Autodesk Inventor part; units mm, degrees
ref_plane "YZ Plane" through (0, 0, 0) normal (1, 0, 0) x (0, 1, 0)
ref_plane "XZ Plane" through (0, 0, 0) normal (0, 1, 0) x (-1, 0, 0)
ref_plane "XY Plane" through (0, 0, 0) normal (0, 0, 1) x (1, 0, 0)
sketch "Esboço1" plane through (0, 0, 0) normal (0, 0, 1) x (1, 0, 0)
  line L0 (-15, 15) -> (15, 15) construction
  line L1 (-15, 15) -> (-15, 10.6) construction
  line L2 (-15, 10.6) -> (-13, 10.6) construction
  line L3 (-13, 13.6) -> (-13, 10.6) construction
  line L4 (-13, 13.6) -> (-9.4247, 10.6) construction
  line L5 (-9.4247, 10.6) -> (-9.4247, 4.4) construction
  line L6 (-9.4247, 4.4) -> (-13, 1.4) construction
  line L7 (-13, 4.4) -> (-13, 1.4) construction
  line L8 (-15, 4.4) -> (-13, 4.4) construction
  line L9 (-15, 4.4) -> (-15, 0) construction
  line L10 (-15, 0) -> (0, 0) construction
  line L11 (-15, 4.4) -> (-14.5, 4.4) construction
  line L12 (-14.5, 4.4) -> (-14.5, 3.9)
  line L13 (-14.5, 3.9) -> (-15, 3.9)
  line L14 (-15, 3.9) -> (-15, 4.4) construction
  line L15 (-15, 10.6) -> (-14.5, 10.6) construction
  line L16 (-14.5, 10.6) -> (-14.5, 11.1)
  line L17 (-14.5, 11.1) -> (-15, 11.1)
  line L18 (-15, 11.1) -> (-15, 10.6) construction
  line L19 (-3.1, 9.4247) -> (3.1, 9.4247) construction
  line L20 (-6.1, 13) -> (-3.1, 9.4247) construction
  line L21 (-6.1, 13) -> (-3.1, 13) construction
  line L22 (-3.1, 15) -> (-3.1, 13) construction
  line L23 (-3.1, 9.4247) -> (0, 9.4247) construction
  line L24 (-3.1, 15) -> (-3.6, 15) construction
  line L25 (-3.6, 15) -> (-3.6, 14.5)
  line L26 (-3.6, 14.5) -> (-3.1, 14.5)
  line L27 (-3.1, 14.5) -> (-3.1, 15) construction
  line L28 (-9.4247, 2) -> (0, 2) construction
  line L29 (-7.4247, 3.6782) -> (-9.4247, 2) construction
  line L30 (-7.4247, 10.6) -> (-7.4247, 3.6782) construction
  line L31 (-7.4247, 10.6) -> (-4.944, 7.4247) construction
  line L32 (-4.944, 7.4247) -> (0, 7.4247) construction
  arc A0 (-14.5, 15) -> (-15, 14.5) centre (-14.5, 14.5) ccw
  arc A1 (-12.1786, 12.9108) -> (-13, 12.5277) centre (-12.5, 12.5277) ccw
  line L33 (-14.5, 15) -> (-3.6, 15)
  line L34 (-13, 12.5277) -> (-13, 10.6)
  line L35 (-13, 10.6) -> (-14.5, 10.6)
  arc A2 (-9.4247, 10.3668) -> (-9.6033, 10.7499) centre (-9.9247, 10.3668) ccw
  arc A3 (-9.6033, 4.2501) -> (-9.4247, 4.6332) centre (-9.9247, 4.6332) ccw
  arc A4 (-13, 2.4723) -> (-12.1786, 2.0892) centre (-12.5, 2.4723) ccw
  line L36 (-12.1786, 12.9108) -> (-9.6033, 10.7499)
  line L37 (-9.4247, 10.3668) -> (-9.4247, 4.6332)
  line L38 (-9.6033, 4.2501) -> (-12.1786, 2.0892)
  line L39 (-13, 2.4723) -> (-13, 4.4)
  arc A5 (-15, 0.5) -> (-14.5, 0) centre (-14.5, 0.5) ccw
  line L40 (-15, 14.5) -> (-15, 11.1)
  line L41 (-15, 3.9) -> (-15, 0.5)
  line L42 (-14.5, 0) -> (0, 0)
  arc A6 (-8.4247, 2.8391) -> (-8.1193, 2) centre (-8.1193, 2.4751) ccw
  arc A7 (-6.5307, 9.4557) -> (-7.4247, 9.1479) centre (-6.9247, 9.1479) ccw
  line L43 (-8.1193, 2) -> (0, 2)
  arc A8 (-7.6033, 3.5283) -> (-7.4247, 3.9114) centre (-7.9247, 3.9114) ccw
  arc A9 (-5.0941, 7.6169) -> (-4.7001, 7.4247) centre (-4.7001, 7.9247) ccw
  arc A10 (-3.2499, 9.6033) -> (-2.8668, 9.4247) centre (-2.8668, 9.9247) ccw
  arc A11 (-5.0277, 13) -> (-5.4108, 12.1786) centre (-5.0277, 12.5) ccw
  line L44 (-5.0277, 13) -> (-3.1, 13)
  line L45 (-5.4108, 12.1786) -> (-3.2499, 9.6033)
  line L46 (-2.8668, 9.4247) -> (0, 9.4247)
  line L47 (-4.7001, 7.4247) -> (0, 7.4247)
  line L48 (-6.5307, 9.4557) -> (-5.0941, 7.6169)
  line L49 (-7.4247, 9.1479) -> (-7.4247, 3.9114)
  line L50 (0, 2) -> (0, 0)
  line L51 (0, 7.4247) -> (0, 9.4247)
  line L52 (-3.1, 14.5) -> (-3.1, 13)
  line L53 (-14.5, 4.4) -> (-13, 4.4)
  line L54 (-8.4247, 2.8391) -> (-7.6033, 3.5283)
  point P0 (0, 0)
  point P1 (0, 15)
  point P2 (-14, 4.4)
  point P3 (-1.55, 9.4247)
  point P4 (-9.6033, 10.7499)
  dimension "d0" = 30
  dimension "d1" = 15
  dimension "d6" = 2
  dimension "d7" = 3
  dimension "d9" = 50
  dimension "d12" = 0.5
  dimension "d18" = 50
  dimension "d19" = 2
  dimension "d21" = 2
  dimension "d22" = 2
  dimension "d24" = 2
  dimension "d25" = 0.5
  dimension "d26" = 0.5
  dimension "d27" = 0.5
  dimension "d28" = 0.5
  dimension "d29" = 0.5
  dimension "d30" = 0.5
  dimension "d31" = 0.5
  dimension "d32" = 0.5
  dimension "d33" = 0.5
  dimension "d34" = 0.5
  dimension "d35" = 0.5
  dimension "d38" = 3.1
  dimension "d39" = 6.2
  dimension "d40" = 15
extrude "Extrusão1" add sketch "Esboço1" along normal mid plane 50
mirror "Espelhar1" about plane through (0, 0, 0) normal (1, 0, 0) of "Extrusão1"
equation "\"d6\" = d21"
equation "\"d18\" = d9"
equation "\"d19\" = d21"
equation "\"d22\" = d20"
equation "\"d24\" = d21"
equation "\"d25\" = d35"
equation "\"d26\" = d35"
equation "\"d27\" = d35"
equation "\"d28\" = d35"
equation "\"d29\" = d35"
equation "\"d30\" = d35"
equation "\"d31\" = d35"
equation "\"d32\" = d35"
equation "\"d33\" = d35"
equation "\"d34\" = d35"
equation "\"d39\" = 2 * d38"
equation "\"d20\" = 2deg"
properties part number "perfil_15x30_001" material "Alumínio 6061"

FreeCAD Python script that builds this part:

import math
import FreeCAD as App
import Part
import Sketcher
Q = App.Units.Quantity

doc = App.newDocument("Part")
body = doc.addObject("PartDesign::Body", "Body")

# Sketch on XY plane
sketch1 = body.newObject("Sketcher::SketchObject", "Sketch")
sketch1.AttachmentSupport = (doc.getObject("XY_Plane"), [""])
sketch1.MapMode = "FlatFace"
sketch1.addGeometry(Part.LineSegment(App.Vector(-13, 4.4, 0), App.Vector(-14.5, 4.4, 0)), False)
sketch1.addGeometry(Part.LineSegment(App.Vector(-14.5, 4.4, 0), App.Vector(-14.5, 3.9, 0)), False)
sketch1.addGeometry(Part.LineSegment(App.Vector(-14.5, 3.9, 0), App.Vector(-15, 3.9, 0)), False)
sketch1.addGeometry(Part.LineSegment(App.Vector(-15, 3.9, 0), App.Vector(-15, 0.5, 0)), False)
sketch1.addGeometry(Part.ArcOfCircle(Part.Circle(App.Vector(-14.5, 0.5, 0), App.Vector(0, 0, 1), 0.5), math.radians(180), math.radians(270)), False)
sketch1.addGeometry(Part.LineSegment(App.Vector(-14.5, 0, 0), App.Vector(0, 0, 0)), False)
sketch1.addGeometry(Part.LineSegment(App.Vector(0, 0, 0), App.Vector(0, 2, 0)), False)
sketch1.addGeometry(Part.LineSegment(App.Vector(0, 2, 0), App.Vector(-8.12, 2, 0)), False)
sketch1.addGeometry(Part.ArcOfCircle(Part.Circle(App.Vector(-8.12, 2.48, 0), App.Vector(0, 0, 1), 0.48), math.radians(130), math.radians(270)), False)
sketch1.addGeometry(Part.LineSegment(App.Vector(-8.42, 2.84, 0), App.Vector(-7.6, 3.53, 0)), False)
sketch1.addGeometry(Part.ArcOfCircle(Part.Circle(App.Vector(-7.92, 3.91, 0), App.Vector(0, 0, 1), 0.5), math.radians(-50), math.radians(0)), False)
sketch1.addGeometry(Part.LineSegment(App.Vector(-7.42, 3.91, 0), App.Vector(-7.42, 9.15, 0)), False)
sketch1.addGeometry(Part.ArcOfCircle(Part.Circle(App.Vector(-6.92, 9.15, 0), App.Vector(0, 0, 1), 0.5), math.radians(38), math.radians(180)), False)
sketch1.addGeometry(Part.LineSegment(App.Vector(-6.53, 9.46, 0), App.Vector(-5.09, 7.62, 0)), False)
sketch1.addGeometry(Part.ArcOfCircle(Part.Circle(App.Vector(-4.7, 7.92, 0), App.Vector(0, 0, 1), 0.5), math.radians(-142), math.radians(-90)), False)
sketch1.addGeometry(Part.LineSegment(App.Vector(-4.7, 7.42, 0), App.Vector(0, 7.42, 0)), False)
sketch1.addGeometry(Part.LineSegment(App.Vector(0, 7.42, 0), App.Vector(0, 9.42, 0)), False)
sketch1.addGeometry(Part.LineSegment(App.Vector(0, 9.42, 0), App.Vector(-2.87, 9.42, 0)), False)
sketch1.addGeometry(Part.ArcOfCircle(Part.Circle(App.Vector(-2.87, 9.92, 0), App.Vector(0, 0, 1), 0.5), math.radians(-140), math.radians(-90)), False)
sketch1.addGeometry(Part.LineSegment(App.Vector(-3.25, 9.6, 0), App.Vector(-5.41, 12.18, 0)), False)
sketch1.addGeometry(Part.ArcOfCircle(Part.Circle(App.Vector(-5.03, 12.5, 0), App.Vector(0, 0, 1), 0.5), math.radians(90), math.radians(220)), False)
sketch1.addGeometry(Part.LineSegment(App.Vector(-5.03, 13, 0), App.Vector(-3.1, 13, 0)), False)
sketch1.addGeometry(Part.LineSegment(App.Vector(-3.1, 13, 0), App.Vector(-3.1, 14.5, 0)), False)
sketch1.addGeometry(Part.LineSegment(App.Vector(-3.1, 14.5, 0), App.Vector(-3.6, 14.5, 0)), False)
sketch1.addGeometry(Part.LineSegment(App.Vector(-3.6, 14.5, 0), App.Vector(-3.6, 15, 0)), False)
sketch1.addGeometry(Part.LineSegment(App.Vector(-3.6, 15, 0), App.Vector(-14.5, 15, 0)), False)
sketch1.addGeometry(Part.ArcOfCircle(Part.Circle(App.Vector(-14.5, 14.5, 0), App.Vector(0, 0, 1), 0.5), math.radians(90), math.radians(180)), False)
sketch1.addGeometry(Part.LineSegment(App.Vector(-15, 14.5, 0), App.Vector(-15, 11.1, 0)), False)
sketch1.addGeometry(Part.LineSegment(App.Vector(-15, 11.1, 0), App.Vector(-14.5, 11.1, 0)), False)
sketch1.addGeometry(Part.LineSegment(App.Vector(-14.5, 11.1, 0), App.Vector(-14.5, 10.6, 0)), False)
sketch1.addGeometry(Part.LineSegment(App.Vector(-14.5, 10.6, 0), App.Vector(-13, 10.6, 0)), False)
sketch1.addGeometry(Part.LineSegment(App.Vector(-13, 10.6, 0), App.Vector(-13, 12.53, 0)), False)
sketch1.addGeometry(Part.ArcOfCircle(Part.Circle(App.Vector(-12.5, 12.53, 0), App.Vector(0, 0, 1), 0.5), math.radians(50), math.radians(180)), False)
sketch1.addGeometry(Part.LineSegment(App.Vector(-12.18, 12.91, 0), App.Vector(-9.6, 10.75, 0)), False)
sketch1.addGeometry(Part.ArcOfCircle(Part.Circle(App.Vector(-9.92, 10.37, 0), App.Vector(0, 0, 1), 0.5), math.radians(0), math.radians(50)), False)
sketch1.addGeometry(Part.LineSegment(App.Vector(-9.42, 10.37, 0), App.Vector(-9.42, 4.63, 0)), False)
sketch1.addGeometry(Part.ArcOfCircle(Part.Circle(App.Vector(-9.92, 4.63, 0), App.Vector(0, 0, 1), 0.5), math.radians(-50), math.radians(0)), False)
sketch1.addGeometry(Part.LineSegment(App.Vector(-9.6, 4.25, 0), App.Vector(-12.18, 2.09, 0)), False)
sketch1.addGeometry(Part.ArcOfCircle(Part.Circle(App.Vector(-12.5, 2.47, 0), App.Vector(0, 0, 1), 0.5), math.radians(180), math.radians(310)), False)
sketch1.addGeometry(Part.LineSegment(App.Vector(-13, 2.47, 0), App.Vector(-13, 4.4, 0)), False)
sketch1.addConstraint(Sketcher.Constraint("Coincident", 0, 2, 1, 1))
sketch1.addConstraint(Sketcher.Constraint("Coincident", 1, 2, 2, 1))
sketch1.addConstraint(Sketcher.Constraint("Coincident", 2, 2, 3, 1))
sketch1.addConstraint(Sketcher.Constraint("Tangent", 3, 2, 4, 1))
sketch1.addConstraint(Sketcher.Constraint("Tangent", 4, 2, 5, 1))
sketch1.addConstraint(Sketcher.Constraint("Coincident", 5, 2, 6, 1))
sketch1.addConstraint(Sketcher.Constraint("Coincident", 6, 2, 7, 1))
sketch1.addConstraint(Sketcher.Constraint("Tangent", 7, 2, 8, 2))
sketch1.addConstraint(Sketcher.Constraint("Tangent", 8, 1, 9, 1))
sketch1.addConstraint(Sketcher.Constraint("Tangent", 9, 2, 10, 1))
sketch1.addConstraint(Sketcher.Constraint("Tangent", 10, 2, 11, 1))
sketch1.addConstraint(Sketcher.Constraint("Tangent", 11, 2, 12, 2))
sketch1.addConstraint(Sketcher.Constraint("Tangent", 12, 1, 13, 1))
sketch1.addConstraint(Sketcher.Constraint("Tangent", 13, 2, 14, 1))
sketch1.addConstraint(Sketcher.Constraint("Tangent", 14, 2, 15, 1))
sketch1.addConstraint(Sketcher.Constraint("Coincident", 15, 2, 16, 1))
sketch1.addConstraint(Sketcher.Constraint("Coincident", 16, 2, 17, 1))
sketch1.addConstraint(Sketcher.Constraint("Tangent", 17, 2, 18, 2))
sketch1.addConstraint(Sketcher.Constraint("Tangent", 18, 1, 19, 1))
sketch1.addConstraint(Sketcher.Constraint("Tangent", 19, 2, 20, 2))
sketch1.addConstraint(Sketcher.Constraint("Tangent", 20, 1, 21, 1))
sketch1.addConstraint(Sketcher.Constraint("Coincident", 21, 2, 22, 1))
sketch1.addConstraint(Sketcher.Constraint("Coincident", 22, 2, 23, 1))
sketch1.addConstraint(Sketcher.Constraint("Coincident", 23, 2, 24, 1))
sketch1.addConstraint(Sketcher.Constraint("Coincident", 24, 2, 25, 1))
sketch1.addConstraint(Sketcher.Constraint("Tangent", 25, 2, 26, 1))
sketch1.addConstraint(Sketcher.Constraint("Tangent", 26, 2, 27, 1))
sketch1.addConstraint(Sketcher.Constraint("Coincident", 27, 2, 28, 1))
sketch1.addConstraint(Sketcher.Constraint("Coincident", 28, 2, 29, 1))
sketch1.addConstraint(Sketcher.Constraint("Coincident", 29, 2, 30, 1))
sketch1.addConstraint(Sketcher.Constraint("Coincident", 30, 2, 31, 1))
sketch1.addConstraint(Sketcher.Constraint("Tangent", 31, 2, 32, 2))
sketch1.addConstraint(Sketcher.Constraint("Tangent", 32, 1, 33, 1))
sketch1.addConstraint(Sketcher.Constraint("Tangent", 33, 2, 34, 2))
sketch1.addConstraint(Sketcher.Constraint("Tangent", 34, 1, 35, 1))
sketch1.addConstraint(Sketcher.Constraint("Tangent", 35, 2, 36, 2))
sketch1.addConstraint(Sketcher.Constraint("Tangent", 36, 1, 37, 1))
sketch1.addConstraint(Sketcher.Constraint("Tangent", 37, 2, 38, 2))
sketch1.addConstraint(Sketcher.Constraint("Tangent", 38, 1, 39, 1))
sketch1.addConstraint(Sketcher.Constraint("Coincident", 39, 2, 0, 1))
sketch1.addConstraint(Sketcher.Constraint("Horizontal", 0))
sketch1.addConstraint(Sketcher.Constraint("Vertical", 1))
sketch1.addConstraint(Sketcher.Constraint("Horizontal", 2))
sketch1.addConstraint(Sketcher.Constraint("Vertical", 3))
sketch1.addConstraint(Sketcher.Constraint("Horizontal", 5))
sketch1.addConstraint(Sketcher.Constraint("Vertical", 6))
sketch1.addConstraint(Sketcher.Constraint("Horizontal", 7))
sketch1.addConstraint(Sketcher.Constraint("Vertical", 11))
sketch1.addConstraint(Sketcher.Constraint("Horizontal", 15))
sketch1.addConstraint(Sketcher.Constraint("Vertical", 16))
sketch1.addConstraint(Sketcher.Constraint("Horizontal", 17))
sketch1.addConstraint(Sketcher.Constraint("Horizontal", 21))
sketch1.addConstraint(Sketcher.Constraint("Vertical", 22))
sketch1.addConstraint(Sketcher.Constraint("Horizontal", 23))
sketch1.addConstraint(Sketcher.Constraint("Vertical", 24))
sketch1.addConstraint(Sketcher.Constraint("Horizontal", 25))
sketch1.addConstraint(Sketcher.Constraint("Vertical", 27))
sketch1.addConstraint(Sketcher.Constraint("Horizontal", 28))
sketch1.addConstraint(Sketcher.Constraint("Vertical", 29))
sketch1.addConstraint(Sketcher.Constraint("Horizontal", 30))
sketch1.addConstraint(Sketcher.Constraint("Vertical", 31))
sketch1.addConstraint(Sketcher.Constraint("Vertical", 35))
sketch1.addConstraint(Sketcher.Constraint("Vertical", 39))
sketch1.addConstraint(Sketcher.Constraint("Coincident", 5, 2, -1, 1))
sketch1.addConstraint(Sketcher.Constraint("Equal", 4, 10))
sketch1.addConstraint(Sketcher.Constraint("Equal", 10, 12))
sketch1.addConstraint(Sketcher.Constraint("Equal", 12, 14))
sketch1.addConstraint(Sketcher.Constraint("Equal", 14, 18))
sketch1.addConstraint(Sketcher.Constraint("Equal", 18, 20))
sketch1.addConstraint(Sketcher.Constraint("Equal", 20, 26))
sketch1.addConstraint(Sketcher.Constraint("Equal", 26, 32))
sketch1.addConstraint(Sketcher.Constraint("Equal", 32, 34))
sketch1.addConstraint(Sketcher.Constraint("Equal", 34, 36))
sketch1.addConstraint(Sketcher.Constraint("Equal", 36, 38))
sketch1.addConstraint(Sketcher.Constraint("PointOnObject", 15, 2, -2))
sketch1.addConstraint(Sketcher.Constraint("Perpendicular", 9, 19))
sketch1.addConstraint(Sketcher.Constraint("Perpendicular", 19, 37))
sketch1.addConstraint(Sketcher.Constraint("Horizontal", 26, 3, 22, 2))
sketch1.addConstraint(Sketcher.Constraint("Vertical", 4, 3, 26, 3))
sketch1.addConstraint(Sketcher.Constraint("Vertical", 32, 3, 38, 3))
sketch1.addConstraint(Sketcher.Constraint("Vertical", 26, 3, 0, 2))
sketch1.addConstraint(Sketcher.Constraint("Vertical", 25, 2, 28, 2))
sketch1.addConstraint(Sketcher.Constraint("Vertical", 33, 2, 36, 1))
sketch1.addConstraint(Sketcher.Constraint("Equal", 2, 23))
sketch1.addConstraint(Sketcher.Constraint("Equal", 28, 1))
sketch1.addConstraint(Sketcher.Constraint("Equal", 6, 16))
sketch1.addConstraint(Sketcher.Constraint("Equal", 30, 22))
sketch1.addConstraint(Sketcher.Constraint("Equal", 3, 27))
sketch1.addConstraint(Sketcher.Constraint("Equal", 24, 29))
sketch1.addConstraint(Sketcher.Constraint("Equal", 21, 31))
sketch1.addConstraint(Sketcher.Constraint("Equal", 31, 39))
sketch1.addConstraint(Sketcher.Constraint("Equal", 19, 33))
sketch1.addConstraint(Sketcher.Constraint("Radius", 4, Q("0.5 mm")))
sketch1.addConstraint(Sketcher.Constraint("DistanceY", 6, 1, 6, 2, Q("2 mm")))
sketch1.addConstraint(Sketcher.Constraint("DistanceX", 2, 2, -1, 1, Q("15 mm")))
sketch1.addConstraint(Sketcher.Constraint("DistanceY", -1, 1, 24, 2, Q("15 mm")))
sketch1.addConstraint(Sketcher.Constraint("DistanceY", 20, 3, 26, 3, Q("2 mm")))
sketch1.addConstraint(Sketcher.Constraint("DistanceX", 34, 3, 12, 3, Q("3 mm")))
sketch1.addConstraint(Sketcher.Constraint("DistanceX", 21, 2, -1, 1, Q("3.1 mm")))
sketch1.addConstraint(Sketcher.Constraint("DistanceX", 8, 1, 10, 3, Q("0.5 mm")))
sketch1.addConstraint(Sketcher.Constraint("Angle", 13, Q("-52.0005 deg")))
sketch1.addConstraint(Sketcher.Constraint("Angle", 19, Q("129.9996 deg")))
sketch1.addConstraint(Sketcher.Constraint("DistanceX", 15, 1, 15, 2, Q("4.7 mm")))
sketch1.addConstraint(Sketcher.Constraint("DistanceY", 3, 2, 3, 1, Q("3.4 mm")))
sketch1.addConstraint(Sketcher.Constraint("Radius", 8, Q("0.4751 mm")))
sketch1.addConstraint(Sketcher.Constraint("DistanceX", 18, 1, -1, 1, Q("3.25 mm")))
sketch1.addConstraint(Sketcher.Constraint("DistanceX", 12, 1, 19, 2, Q("1.12 mm")))
pad1 = body.newObject("PartDesign::Pad", "Pad")
pad1.Profile = sketch1
pad1.Length = 50
pad1.Midplane = True
doc.recompute()

mirrored = body.newObject("PartDesign::Mirrored", "Mirrored")
mirrored.Originals = [pad1]
mirrored.MirrorPlane = (doc.getObject("YZ_Plane"), [""])
body.Tip = mirrored

doc.recompute()
